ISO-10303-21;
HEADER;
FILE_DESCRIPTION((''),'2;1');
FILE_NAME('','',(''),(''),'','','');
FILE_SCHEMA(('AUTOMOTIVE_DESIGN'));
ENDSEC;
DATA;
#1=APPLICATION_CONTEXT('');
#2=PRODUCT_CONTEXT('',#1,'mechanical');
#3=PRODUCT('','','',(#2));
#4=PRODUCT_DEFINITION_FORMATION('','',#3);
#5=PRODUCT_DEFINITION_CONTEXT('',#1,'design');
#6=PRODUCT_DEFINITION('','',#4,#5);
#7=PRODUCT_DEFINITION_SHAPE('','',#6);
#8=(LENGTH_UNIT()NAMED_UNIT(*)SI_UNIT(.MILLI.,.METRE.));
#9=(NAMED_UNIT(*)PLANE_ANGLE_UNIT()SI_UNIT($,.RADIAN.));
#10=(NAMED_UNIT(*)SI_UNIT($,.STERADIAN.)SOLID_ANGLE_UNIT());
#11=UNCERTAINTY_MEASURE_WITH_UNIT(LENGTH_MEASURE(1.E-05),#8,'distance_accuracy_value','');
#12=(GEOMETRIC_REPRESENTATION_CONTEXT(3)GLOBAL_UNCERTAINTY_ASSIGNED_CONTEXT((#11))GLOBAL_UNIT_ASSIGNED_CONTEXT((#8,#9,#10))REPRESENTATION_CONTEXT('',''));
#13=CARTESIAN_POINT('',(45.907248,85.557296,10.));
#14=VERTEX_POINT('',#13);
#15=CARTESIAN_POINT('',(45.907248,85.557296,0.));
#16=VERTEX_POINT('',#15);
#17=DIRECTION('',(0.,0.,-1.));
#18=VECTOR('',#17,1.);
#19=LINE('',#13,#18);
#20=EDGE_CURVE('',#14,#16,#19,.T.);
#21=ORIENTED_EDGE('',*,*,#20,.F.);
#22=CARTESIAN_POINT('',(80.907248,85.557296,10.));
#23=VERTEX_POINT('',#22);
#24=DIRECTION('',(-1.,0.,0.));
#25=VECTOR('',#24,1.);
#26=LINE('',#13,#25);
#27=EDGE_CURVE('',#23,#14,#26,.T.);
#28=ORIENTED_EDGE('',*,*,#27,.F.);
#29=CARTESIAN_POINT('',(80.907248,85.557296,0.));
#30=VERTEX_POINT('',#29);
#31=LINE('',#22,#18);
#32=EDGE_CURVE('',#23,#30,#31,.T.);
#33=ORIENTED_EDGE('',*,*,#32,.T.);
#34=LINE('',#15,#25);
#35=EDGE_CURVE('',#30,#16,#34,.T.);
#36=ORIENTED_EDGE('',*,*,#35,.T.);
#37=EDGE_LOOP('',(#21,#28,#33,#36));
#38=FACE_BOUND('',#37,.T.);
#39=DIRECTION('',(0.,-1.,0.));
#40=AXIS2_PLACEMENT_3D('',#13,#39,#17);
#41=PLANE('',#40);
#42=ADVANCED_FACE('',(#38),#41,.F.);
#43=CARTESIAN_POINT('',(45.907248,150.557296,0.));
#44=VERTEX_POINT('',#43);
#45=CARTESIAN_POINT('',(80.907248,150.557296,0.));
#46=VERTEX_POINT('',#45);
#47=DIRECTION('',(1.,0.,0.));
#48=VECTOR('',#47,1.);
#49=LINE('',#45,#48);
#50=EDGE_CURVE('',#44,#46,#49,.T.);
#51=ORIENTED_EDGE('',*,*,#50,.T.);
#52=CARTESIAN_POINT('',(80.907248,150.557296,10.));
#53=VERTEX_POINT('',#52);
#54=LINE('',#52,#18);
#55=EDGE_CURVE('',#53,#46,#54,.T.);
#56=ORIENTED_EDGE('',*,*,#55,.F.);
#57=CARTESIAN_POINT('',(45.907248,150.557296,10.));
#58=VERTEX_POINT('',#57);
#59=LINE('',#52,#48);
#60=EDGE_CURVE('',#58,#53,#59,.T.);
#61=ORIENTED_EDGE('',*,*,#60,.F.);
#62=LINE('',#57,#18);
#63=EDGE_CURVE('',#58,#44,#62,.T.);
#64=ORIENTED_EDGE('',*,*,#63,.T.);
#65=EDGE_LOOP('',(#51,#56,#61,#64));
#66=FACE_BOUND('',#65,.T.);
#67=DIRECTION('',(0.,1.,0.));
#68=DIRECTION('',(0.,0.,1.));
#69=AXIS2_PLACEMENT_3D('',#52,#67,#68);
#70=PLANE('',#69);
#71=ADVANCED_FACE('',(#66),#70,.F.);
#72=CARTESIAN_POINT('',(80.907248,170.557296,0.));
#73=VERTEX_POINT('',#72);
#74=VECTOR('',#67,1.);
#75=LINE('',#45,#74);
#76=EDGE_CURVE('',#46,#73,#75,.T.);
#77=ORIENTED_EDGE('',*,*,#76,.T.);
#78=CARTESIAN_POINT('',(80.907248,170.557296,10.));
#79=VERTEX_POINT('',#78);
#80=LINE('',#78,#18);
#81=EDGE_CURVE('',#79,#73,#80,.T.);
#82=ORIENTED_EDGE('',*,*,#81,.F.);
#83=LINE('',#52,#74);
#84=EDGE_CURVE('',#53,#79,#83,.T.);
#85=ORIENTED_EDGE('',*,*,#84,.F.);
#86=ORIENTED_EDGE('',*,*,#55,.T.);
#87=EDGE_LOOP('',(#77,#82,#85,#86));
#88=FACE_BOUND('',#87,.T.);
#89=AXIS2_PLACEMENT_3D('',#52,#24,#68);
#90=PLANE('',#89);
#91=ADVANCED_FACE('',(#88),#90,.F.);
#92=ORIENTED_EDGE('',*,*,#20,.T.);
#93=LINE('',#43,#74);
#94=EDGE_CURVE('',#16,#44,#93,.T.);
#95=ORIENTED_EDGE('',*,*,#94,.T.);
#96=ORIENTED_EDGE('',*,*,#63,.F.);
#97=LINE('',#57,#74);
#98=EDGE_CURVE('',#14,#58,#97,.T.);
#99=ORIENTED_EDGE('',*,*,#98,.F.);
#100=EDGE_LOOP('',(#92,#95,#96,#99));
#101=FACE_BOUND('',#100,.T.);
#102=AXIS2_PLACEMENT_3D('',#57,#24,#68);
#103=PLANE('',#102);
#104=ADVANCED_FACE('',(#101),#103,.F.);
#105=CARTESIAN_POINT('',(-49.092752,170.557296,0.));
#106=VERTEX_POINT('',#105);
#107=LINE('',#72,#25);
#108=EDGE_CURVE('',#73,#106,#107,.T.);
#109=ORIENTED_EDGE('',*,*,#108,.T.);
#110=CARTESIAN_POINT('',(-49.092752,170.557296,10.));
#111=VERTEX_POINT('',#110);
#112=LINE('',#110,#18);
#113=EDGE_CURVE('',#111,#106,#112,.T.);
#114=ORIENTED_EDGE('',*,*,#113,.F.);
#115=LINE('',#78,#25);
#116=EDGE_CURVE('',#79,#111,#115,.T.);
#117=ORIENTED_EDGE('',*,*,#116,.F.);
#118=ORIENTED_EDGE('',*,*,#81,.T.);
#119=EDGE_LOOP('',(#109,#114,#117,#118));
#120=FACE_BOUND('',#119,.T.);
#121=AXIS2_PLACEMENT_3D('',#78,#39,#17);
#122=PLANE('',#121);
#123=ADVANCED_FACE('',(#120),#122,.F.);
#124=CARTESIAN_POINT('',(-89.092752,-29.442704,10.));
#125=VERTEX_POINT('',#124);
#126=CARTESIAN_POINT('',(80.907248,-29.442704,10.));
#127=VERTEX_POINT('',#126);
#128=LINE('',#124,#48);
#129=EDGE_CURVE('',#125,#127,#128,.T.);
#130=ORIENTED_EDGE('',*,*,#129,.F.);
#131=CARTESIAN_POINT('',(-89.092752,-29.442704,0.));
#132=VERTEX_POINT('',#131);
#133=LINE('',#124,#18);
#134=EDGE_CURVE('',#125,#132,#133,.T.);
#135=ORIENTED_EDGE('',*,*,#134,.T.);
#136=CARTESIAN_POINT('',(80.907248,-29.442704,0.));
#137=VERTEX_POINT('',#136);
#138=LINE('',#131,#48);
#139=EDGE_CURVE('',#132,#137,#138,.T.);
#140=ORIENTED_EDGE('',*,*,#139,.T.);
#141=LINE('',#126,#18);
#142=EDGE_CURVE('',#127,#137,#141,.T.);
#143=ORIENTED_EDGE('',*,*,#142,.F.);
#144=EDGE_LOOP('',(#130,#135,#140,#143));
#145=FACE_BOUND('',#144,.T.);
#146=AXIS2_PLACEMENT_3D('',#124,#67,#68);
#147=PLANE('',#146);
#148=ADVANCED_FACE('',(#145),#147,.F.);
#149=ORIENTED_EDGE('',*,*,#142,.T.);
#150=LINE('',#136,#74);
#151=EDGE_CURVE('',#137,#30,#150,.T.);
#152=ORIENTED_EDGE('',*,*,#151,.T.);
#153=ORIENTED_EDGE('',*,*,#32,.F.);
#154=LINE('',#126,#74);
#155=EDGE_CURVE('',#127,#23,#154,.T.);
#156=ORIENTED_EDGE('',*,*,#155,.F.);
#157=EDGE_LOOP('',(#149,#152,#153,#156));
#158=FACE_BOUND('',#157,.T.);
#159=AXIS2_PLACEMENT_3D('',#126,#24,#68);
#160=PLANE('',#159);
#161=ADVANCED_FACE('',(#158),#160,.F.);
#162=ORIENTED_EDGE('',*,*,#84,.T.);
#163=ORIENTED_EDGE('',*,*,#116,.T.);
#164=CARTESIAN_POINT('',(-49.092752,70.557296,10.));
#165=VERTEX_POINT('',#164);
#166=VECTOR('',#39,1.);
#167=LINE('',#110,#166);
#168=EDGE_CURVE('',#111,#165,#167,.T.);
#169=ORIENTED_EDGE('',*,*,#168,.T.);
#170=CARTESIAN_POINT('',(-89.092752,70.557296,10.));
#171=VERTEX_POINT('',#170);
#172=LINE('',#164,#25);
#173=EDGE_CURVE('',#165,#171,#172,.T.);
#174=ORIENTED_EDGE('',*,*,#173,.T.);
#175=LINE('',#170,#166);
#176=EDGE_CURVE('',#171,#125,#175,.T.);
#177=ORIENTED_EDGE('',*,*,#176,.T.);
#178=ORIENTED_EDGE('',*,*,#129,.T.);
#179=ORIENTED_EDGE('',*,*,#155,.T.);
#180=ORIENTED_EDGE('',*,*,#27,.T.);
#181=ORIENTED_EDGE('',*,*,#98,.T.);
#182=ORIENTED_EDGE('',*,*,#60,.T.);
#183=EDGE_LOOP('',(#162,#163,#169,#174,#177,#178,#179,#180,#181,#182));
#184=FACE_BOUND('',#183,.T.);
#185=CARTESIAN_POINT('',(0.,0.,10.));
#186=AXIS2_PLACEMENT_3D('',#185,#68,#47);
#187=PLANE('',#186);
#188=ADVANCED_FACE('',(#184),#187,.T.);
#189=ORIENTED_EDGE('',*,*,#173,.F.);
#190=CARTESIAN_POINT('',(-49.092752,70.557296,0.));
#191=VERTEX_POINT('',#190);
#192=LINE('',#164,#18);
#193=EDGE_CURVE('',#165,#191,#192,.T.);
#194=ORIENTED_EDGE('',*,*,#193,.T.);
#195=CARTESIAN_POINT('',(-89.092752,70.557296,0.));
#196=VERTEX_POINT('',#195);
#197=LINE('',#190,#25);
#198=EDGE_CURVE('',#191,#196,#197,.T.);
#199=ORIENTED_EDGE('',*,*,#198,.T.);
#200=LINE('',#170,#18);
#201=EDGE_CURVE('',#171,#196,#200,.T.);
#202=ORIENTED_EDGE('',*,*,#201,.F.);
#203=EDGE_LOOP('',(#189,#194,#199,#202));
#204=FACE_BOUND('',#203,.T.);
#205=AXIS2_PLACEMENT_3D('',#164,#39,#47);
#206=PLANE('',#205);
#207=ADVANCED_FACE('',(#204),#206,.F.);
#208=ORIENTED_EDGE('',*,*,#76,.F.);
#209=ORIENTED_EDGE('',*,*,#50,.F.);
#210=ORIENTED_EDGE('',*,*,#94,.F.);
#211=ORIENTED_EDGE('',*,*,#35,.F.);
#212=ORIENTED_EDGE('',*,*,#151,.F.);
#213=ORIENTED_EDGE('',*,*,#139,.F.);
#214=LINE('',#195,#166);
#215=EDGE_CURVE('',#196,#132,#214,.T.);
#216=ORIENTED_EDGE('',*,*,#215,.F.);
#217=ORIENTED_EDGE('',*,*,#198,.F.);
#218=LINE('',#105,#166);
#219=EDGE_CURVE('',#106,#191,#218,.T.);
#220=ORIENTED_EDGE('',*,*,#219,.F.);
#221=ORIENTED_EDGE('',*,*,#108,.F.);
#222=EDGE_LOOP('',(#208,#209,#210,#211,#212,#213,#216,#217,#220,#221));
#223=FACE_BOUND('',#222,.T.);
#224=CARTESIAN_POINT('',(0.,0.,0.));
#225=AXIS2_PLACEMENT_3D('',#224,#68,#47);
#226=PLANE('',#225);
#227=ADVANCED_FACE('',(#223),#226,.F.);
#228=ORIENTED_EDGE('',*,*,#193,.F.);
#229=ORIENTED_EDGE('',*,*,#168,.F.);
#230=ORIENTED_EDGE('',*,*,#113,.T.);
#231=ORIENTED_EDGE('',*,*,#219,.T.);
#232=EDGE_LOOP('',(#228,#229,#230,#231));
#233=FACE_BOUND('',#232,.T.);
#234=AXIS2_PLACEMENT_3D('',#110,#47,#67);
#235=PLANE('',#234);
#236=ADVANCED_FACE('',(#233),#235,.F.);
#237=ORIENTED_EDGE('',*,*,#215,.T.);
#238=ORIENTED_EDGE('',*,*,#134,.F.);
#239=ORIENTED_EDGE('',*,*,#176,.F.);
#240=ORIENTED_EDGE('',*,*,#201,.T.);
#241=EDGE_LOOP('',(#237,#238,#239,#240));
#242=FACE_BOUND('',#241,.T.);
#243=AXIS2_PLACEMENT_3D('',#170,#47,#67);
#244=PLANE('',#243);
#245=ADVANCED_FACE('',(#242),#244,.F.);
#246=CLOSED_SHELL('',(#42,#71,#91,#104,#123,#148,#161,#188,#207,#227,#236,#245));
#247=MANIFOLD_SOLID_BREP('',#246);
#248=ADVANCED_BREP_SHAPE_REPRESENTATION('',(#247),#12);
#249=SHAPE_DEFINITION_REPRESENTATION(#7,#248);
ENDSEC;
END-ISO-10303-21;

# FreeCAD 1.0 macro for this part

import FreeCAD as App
import Part
import Sketcher

doc = App.newDocument("Part")
params = doc.addObject("Spreadsheet::Sheet", "Params")
for row, (alias, value) in enumerate([
    ("sketch1_width", "170 mm"),
    ("sketch1_width2", "35 mm"),
    ("sketch1_width3", "130 mm"),
    ("sketch1_height", "115 mm"),
    ("sketch1_height2", "65 mm"),
    ("pad1_length", "10 mm"),
], start=1):
    params.set(f"A{row}", alias)
    params.set(f"B{row}", "=" + value)
    params.setAlias(f"B{row}", alias)

body = doc.addObject("PartDesign::Body", "Body")

# Sketch on XY plane
sketch1 = doc.addObject("Sketcher::SketchObject", "Sketch")
body.addObject(sketch1)
sketch1.AttachmentSupport = (doc.XY_Plane, [""])
sketch1.MapMode = "FlatFace"
sketch1.addGeometry([
    Part.LineSegment(App.Vector(-89, -29, 0), App.Vector(81, -29, 0)),  # 0
    Part.LineSegment(App.Vector(81, -29, 0), App.Vector(81, 86, 0)),  # 1
    Part.LineSegment(App.Vector(81, 86, 0), App.Vector(46, 86, 0)),  # 2
    Part.LineSegment(App.Vector(46, 86, 0), App.Vector(46, 151, 0)),  # 3
    Part.LineSegment(App.Vector(46, 151, 0), App.Vector(81, 151, 0)),  # 4
    Part.LineSegment(App.Vector(81, 151, 0), App.Vector(81, 171, 0)),  # 5
    Part.LineSegment(App.Vector(81, 171, 0), App.Vector(-49, 171, 0)),  # 6
    Part.LineSegment(App.Vector(-49, 171, 0), App.Vector(-49, 71, 0)),  # 7
    Part.LineSegment(App.Vector(-49, 71, 0), App.Vector(-89, 71, 0)),  # 8
    Part.LineSegment(App.Vector(-89, 71, 0), App.Vector(-89, -29, 0)),  # 9
], False)
sketch1.addConstraint([
    Sketcher.Constraint("Coincident", 0, 2, 1, 1),
    Sketcher.Constraint("Coincident", 1, 2, 2, 1),
    Sketcher.Constraint("Coincident", 2, 2, 3, 1),
    Sketcher.Constraint("Coincident", 3, 2, 4, 1),
    Sketcher.Constraint("Coincident", 4, 2, 5, 1),
    Sketcher.Constraint("Coincident", 5, 2, 6, 1),
    Sketcher.Constraint("Coincident", 6, 2, 7, 1),
    Sketcher.Constraint("Coincident", 7, 2, 8, 1),
    Sketcher.Constraint("Coincident", 8, 2, 9, 1),
    Sketcher.Constraint("Coincident", 9, 2, 0, 1),
    Sketcher.Constraint("Horizontal", 0),
    Sketcher.Constraint("Vertical", 1),
    Sketcher.Constraint("Horizontal", 2),
    Sketcher.Constraint("Vertical", 3),
    Sketcher.Constraint("Horizontal", 4),
    Sketcher.Constraint("Vertical", 5),
    Sketcher.Constraint("Horizontal", 6),
    Sketcher.Constraint("Vertical", 7),
    Sketcher.Constraint("Horizontal", 8),
    Sketcher.Constraint("Vertical", 9),
    Sketcher.Constraint("Vertical", 1, 2, 4, 2),
    Sketcher.Constraint("Equal", 7, 9),
    Sketcher.Constraint("DistanceX", 0, 1, 0, 2, 170.0),
    Sketcher.Constraint("DistanceX", 2, 2, 2, 1, 35.0),
    Sketcher.Constraint("DistanceX", 6, 2, 6, 1, 130.0),
    Sketcher.Constraint("DistanceY", 1, 1, 1, 2, 115.0),
    Sketcher.Constraint("DistanceY", 3, 1, 3, 2, 65.0),
    Sketcher.Constraint("DistanceY", 5, 1, 5, 2, 20.0),
    Sketcher.Constraint("DistanceX", -1, 1, 0, 2, 80.907248),
    Sketcher.Constraint("DistanceY", 0, 2, -1, 1, 29.442704),
])
sketch1.setExpression("Constraints[22]", "Params.sketch1_width")
sketch1.setExpression("Constraints[23]", "Params.sketch1_width2")
sketch1.setExpression("Constraints[24]", "Params.sketch1_width3")
sketch1.setExpression("Constraints[25]", "Params.sketch1_height")
sketch1.setExpression("Constraints[26]", "Params.sketch1_height2")
pad1 = doc.addObject("PartDesign::Pad", "Pad")
body.addObject(pad1)
pad1.Profile = sketch1
pad1.setExpression("Length", "Params.pad1_length")

doc.recompute()
